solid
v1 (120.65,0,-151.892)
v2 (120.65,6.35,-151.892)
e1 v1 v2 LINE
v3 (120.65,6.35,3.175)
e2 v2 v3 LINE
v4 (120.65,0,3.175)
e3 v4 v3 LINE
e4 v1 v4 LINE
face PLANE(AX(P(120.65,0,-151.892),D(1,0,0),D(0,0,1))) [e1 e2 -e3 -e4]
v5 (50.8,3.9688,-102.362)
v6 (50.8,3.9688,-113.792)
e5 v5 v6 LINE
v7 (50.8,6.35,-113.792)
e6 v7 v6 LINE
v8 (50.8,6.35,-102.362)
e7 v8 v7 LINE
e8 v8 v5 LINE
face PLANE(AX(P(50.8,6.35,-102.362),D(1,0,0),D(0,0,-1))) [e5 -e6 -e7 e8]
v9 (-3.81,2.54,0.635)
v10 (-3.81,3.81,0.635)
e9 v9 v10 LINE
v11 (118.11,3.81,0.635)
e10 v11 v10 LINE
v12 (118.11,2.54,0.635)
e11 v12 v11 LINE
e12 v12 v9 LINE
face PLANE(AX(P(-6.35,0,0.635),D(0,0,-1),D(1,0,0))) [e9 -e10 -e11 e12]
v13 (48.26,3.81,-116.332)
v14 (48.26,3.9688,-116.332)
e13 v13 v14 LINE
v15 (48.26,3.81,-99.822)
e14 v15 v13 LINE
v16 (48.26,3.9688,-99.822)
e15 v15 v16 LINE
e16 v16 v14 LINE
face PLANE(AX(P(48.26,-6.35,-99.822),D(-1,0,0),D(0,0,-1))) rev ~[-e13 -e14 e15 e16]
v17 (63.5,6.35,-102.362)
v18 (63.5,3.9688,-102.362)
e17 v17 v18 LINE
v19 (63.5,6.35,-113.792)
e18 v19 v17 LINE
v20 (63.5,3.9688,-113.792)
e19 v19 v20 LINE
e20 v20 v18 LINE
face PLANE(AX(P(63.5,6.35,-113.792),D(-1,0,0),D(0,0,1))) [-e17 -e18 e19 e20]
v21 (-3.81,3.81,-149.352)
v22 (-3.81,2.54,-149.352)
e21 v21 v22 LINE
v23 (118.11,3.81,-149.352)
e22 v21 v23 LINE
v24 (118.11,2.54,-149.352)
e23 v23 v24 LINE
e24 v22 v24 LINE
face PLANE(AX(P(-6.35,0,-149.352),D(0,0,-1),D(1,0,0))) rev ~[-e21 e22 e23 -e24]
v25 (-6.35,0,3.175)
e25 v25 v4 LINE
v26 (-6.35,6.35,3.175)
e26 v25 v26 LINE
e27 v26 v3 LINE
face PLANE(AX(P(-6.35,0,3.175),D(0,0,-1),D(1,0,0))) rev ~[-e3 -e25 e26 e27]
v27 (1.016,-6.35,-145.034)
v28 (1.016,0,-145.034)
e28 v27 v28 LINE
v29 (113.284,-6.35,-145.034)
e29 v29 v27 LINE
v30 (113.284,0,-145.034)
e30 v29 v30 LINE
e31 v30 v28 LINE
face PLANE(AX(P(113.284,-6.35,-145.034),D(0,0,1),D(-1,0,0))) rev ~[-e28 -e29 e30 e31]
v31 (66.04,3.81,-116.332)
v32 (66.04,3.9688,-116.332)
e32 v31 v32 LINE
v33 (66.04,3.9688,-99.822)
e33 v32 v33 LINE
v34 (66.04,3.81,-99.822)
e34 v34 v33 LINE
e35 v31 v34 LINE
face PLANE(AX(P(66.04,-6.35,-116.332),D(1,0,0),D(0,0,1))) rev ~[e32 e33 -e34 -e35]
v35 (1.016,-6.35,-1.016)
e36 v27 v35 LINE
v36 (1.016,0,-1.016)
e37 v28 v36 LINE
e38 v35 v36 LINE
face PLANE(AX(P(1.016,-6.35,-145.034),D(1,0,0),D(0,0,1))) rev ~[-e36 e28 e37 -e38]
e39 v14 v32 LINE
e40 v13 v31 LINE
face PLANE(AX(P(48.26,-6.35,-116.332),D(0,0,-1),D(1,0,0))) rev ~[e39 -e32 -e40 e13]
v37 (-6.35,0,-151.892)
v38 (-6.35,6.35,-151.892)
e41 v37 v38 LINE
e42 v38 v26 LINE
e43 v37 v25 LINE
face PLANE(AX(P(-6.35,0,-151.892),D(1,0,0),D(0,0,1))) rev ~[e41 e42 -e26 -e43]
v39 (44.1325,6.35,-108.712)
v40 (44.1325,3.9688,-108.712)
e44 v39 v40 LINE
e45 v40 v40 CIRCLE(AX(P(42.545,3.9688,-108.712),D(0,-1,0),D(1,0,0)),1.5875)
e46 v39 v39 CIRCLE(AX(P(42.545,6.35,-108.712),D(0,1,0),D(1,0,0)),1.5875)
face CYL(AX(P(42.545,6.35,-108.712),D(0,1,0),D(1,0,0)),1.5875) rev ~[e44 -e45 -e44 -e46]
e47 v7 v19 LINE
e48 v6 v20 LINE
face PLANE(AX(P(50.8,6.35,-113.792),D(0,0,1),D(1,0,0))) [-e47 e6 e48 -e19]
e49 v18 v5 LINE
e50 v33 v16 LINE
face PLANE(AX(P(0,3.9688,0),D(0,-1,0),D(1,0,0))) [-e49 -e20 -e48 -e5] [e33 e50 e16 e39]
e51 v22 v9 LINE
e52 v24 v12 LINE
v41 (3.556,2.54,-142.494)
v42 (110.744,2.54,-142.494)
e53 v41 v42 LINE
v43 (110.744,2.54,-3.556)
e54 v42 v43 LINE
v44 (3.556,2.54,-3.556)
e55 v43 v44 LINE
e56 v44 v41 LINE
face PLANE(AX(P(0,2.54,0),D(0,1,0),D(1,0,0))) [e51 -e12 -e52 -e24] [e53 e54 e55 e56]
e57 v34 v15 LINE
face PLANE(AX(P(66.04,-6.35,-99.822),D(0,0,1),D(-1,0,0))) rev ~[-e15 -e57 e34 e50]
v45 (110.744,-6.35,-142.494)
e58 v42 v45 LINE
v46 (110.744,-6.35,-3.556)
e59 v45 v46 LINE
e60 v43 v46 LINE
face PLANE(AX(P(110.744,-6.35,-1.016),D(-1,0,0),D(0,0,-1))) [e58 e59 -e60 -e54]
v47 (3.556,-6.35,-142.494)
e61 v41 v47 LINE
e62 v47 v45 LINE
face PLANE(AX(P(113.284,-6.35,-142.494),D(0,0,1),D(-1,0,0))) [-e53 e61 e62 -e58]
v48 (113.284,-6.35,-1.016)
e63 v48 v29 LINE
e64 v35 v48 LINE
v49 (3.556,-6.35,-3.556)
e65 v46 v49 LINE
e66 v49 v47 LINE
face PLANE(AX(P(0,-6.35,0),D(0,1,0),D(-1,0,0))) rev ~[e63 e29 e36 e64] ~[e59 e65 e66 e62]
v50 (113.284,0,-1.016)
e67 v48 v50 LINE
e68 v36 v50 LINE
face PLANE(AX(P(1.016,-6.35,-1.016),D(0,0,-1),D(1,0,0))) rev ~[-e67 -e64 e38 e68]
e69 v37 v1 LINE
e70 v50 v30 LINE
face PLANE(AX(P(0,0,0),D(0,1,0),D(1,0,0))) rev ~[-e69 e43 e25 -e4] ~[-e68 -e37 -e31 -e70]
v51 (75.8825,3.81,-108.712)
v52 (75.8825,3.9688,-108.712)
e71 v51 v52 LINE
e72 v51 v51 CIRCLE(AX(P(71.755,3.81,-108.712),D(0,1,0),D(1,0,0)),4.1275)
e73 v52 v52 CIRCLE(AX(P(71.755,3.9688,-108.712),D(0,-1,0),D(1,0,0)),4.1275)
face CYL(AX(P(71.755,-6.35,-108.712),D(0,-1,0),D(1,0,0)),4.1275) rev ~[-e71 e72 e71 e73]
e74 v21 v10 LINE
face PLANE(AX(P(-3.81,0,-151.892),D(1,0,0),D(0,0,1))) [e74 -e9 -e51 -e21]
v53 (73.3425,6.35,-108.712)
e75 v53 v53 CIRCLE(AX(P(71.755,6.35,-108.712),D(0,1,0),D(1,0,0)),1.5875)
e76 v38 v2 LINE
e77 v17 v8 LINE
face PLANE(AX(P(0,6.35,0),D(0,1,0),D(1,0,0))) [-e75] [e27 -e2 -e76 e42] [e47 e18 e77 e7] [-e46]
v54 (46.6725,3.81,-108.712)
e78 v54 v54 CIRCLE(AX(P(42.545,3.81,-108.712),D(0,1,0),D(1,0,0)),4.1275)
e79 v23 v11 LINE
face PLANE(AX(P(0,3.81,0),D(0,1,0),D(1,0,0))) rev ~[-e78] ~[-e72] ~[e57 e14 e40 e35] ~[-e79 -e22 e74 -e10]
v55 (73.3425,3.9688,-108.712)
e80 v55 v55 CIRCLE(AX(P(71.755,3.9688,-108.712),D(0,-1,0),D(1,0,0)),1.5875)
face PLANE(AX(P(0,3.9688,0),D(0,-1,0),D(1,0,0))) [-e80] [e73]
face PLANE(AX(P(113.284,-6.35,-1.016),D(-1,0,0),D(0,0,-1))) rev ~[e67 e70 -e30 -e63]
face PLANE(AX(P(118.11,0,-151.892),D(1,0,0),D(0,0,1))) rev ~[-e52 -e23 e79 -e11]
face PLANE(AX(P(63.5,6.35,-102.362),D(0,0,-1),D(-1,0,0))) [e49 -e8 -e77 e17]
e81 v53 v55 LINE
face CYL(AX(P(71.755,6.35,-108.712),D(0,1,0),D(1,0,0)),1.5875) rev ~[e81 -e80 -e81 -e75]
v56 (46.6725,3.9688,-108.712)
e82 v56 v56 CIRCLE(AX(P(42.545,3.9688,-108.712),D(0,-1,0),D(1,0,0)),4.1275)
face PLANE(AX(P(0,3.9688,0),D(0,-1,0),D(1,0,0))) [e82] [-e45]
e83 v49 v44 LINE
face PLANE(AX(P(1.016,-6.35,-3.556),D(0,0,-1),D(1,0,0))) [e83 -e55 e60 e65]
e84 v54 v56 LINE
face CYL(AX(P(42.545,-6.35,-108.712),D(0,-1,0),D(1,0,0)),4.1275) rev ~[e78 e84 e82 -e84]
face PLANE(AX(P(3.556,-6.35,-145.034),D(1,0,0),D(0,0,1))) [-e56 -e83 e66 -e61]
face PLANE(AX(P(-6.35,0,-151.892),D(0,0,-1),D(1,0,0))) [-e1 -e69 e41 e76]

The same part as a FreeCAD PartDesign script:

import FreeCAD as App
import Part
import Sketcher
from FreeCAD import Vector
Q = App.Units.Quantity


def faces_at(feature, points):
    """Names of the faces that lie closest to the given points."""
    faces = feature.Shape.Faces
    near = lambda p: min(range(len(faces)), key=lambda i: faces[i].distToShape(Part.Vertex(*p))[0])
    return sorted({f"Face{near(p) + 1}" for p in points})


def add_polygon(sketch, points):
    """Adds a closed chain of lines whose ends are joined by coincident constraints."""
    first, n = sketch.GeometryCount, len(points)
    for a, b in zip(points, points[1:] + points[:1]):
        sketch.addGeometry(Part.LineSegment(App.Vector(*a, 0), App.Vector(*b, 0)), False)
    for i in range(n):
        sketch.addConstraint(Sketcher.Constraint("Coincident", first + i, 2, first + (i + 1) % n, 1))

doc = App.newDocument("Part")
body = doc.addObject("PartDesign::Body", "Body")

# Sketch on XZ plane
sketch1 = body.newObject("Sketcher::SketchObject", "Sketch")
sketch1.AttachmentSupport = (doc.getObject("XZ_Plane"), [""])
sketch1.MapMode = "FlatFace"
add_polygon(sketch1, [(0, -146), (0, 0), (114, 0), (114, -146)])  # lines 0-3
sketch1.addConstraint([
    Sketcher.Constraint("Vertical", 0),
    Sketcher.Constraint("Horizontal", 1),
    Sketcher.Constraint("Vertical", 2),
    Sketcher.Constraint("Horizontal", 3),
    Sketcher.Constraint("Coincident", 0, 2, -1, 1),
    Sketcher.Constraint("DistanceX", 1, 1, 1, 2, Q("4.5 in")),
    Sketcher.Constraint("DistanceY", 0, 1, 0, 2, Q("5.75 in")),
])
pad1 = body.newObject("PartDesign::Pad", "Pad")
pad1.Profile = sketch1
pad1.Length = Q("0.25 in")

# Sketch on XZ plane
sketch2 = body.newObject("Sketcher::SketchObject", "Sketch001")
sketch2.AttachmentSupport = (doc.getObject("XZ_Plane"), [""])
sketch2.MapMode = "FlatFace"
add_polygon(sketch2, [(121, -152), (-6, -152), (-6, 3), (121, 3)])  # lines 0-3
sketch2.addConstraint([
    Sketcher.Constraint("Horizontal", 0),
    Sketcher.Constraint("Vertical", 1),
    Sketcher.Constraint("Horizontal", 2),
    Sketcher.Constraint("Vertical", 3),
    Sketcher.Constraint("DistanceX", 0, 2, 0, 1, Q("5 in")),
    Sketcher.Constraint("DistanceX", 0, 2, -1, 1, Q("0.25 in")),
    Sketcher.Constraint("DistanceY", -1, 1, 1, 2, Q("0.125 in")),
    Sketcher.Constraint("DistanceY", 1, 1, 1, 2, Q("6.105 in")),
])
pad2 = body.newObject("PartDesign::Pad", "Pad001")
pad2.Profile = sketch2
pad2.Length = Q("0.25 in")
pad2.Reversed = True

# Sketch on XZ plane
sketch3 = body.newObject("Sketcher::SketchObject", "Sketch002")
sketch3.AttachmentSupport = (doc.getObject("XZ_Plane"), [""])
sketch3.MapMode = "FlatFace"
sketch3.AttachmentOffset = App.Placement(Vector(0, 0, -0.25 * 25.4), App.Rotation())
add_polygon(sketch3, [(63.5, -113.8), (50.8, -113.8), (50.8, -102.4), (63.5, -102.4)])  # lines 0-3
sketch3.addGeometry(Part.Circle(Vector(42.5, -108.7, 0), Vector(0, 0, 1), 1.6), False)  # 4
sketch3.addGeometry(Part.Circle(Vector(71.8, -108.7, 0), Vector(0, 0, 1), 1.6), False)  # 5
sketch3.addConstraint([
    Sketcher.Constraint("Horizontal", 0),
    Sketcher.Constraint("Vertical", 1),
    Sketcher.Constraint("Horizontal", 2),
    Sketcher.Constraint("Vertical", 3),
    Sketcher.Constraint("Equal", 4, 5),
    Sketcher.Constraint("Horizontal", 4, 3, 5, 3),
    Sketcher.Constraint("Diameter", 4, Q("0.125 in")),
    Sketcher.Constraint("DistanceX", 0, 2, 0, 1, Q("0.5 in")),
    Sketcher.Constraint("DistanceY", 1, 1, 1, 2, Q("0.45 in")),
    Sketcher.Constraint("DistanceY", 4, 3, 1, 2, Q("0.25 in")),
    Sketcher.Constraint("DistanceX", -1, 1, 0, 2, Q("2 in")),
    Sketcher.Constraint("DistanceX", 4, 3, 0, 2, Q("0.325 in")),
    Sketcher.Constraint("DistanceX", 2, 2, 5, 3, Q("0.325 in")),
    Sketcher.Constraint("DistanceY", 4, 3, -1, 1, Q("4.28 in")),
])
pocket1 = body.newObject("PartDesign::Pocket", "Pocket")
pocket1.Profile = sketch3
pocket1.Length = Q("1 in")
pocket1.Reversed = True

# Sketch on XZ plane
sketch4 = body.newObject("Sketcher::SketchObject", "Sketch003")
sketch4.AttachmentSupport = (doc.getObject("XZ_Plane"), [""])
sketch4.MapMode = "FlatFace"
sketch4.AttachmentOffset = App.Placement(Vector(0, 0, 0.25 * 25.4), App.Rotation())
add_polygon(sketch4, [(114, 0), (0, 0), (0, -146), (114, -146)])  # lines 0-3
add_polygon(sketch4, [(1, -145), (1, -1), (113, -1), (113, -145)])  # lines 4-7
sketch4.addConstraint([
    Sketcher.Constraint("Horizontal", 0),
    Sketcher.Constraint("Vertical", 1),
    Sketcher.Constraint("Horizontal", 2),
    Sketcher.Constraint("Vertical", 3),
    Sketcher.Constraint("Vertical", 4),
    Sketcher.Constraint("Horizontal", 5),
    Sketcher.Constraint("Vertical", 6),
    Sketcher.Constraint("Horizontal", 7),
    Sketcher.Constraint("Coincident", 0, 2, -1, 1),
    Sketcher.Constraint("DistanceX", -1, 1, 4, 2, Q("0.04 in")),
    Sketcher.Constraint("DistanceY", 4, 2, -1, 1, Q("0.04 in")),
    Sketcher.Constraint("DistanceX", 5, 2, 3, 2, Q("0.04 in")),
    Sketcher.Constraint("DistanceY", 2, 2, 6, 2, Q("0.04 in")),
    Sketcher.Constraint("DistanceX", 0, 2, 0, 1, Q("4.5 in")),
    Sketcher.Constraint("DistanceY", 1, 2, 1, 1, Q("5.75 in")),
])
pocket2 = body.newObject("PartDesign::Pocket", "Pocket001")
pocket2.Profile = sketch4
pocket2.Length = Q("0.25 in")
doc.recompute()

thickness = body.newObject("PartDesign::Thickness", "Thickness")
thickness.Base = (pocket2, faces_at(pocket2, [(59.267, -6.35, -34.798)]))
thickness.Value = Q("0.1 in")
thickness.Reversed = True
thickness.Join = "Intersection"

# Sketch on XZ plane
sketch5 = body.newObject("Sketcher::SketchObject", "Sketch004")
sketch5.AttachmentSupport = (doc.getObject("XZ_Plane"), [""])
sketch5.MapMode = "FlatFace"
sketch5.AttachmentOffset = App.Placement(Vector(0, 0, 0.25 * 25.4), App.Rotation())
sketch5.addGeometry(Part.Circle(Vector(71.8, -108.7, 0), Vector(0, 0, 1), 4.1), False)  # 0
sketch5.addGeometry(Part.Circle(Vector(71.8, -108.7, 0), Vector(0, 0, 1), 1.6), False)  # 1
sketch5.addGeometry(Part.Circle(Vector(42.5, -108.7, 0), Vector(0, 0, 1), 4.1), False)  # 2
sketch5.addGeometry(Part.Circle(Vector(42.5, -108.7, 0), Vector(0, 0, 1), 1.6), False)  # 3
add_polygon(sketch5, [(66, -116.3), (66, -99.8), (48.3, -99.8), (48.3, -116.3)])  # lines 4-7
sketch5.addConstraint([
    Sketcher.Constraint("Vertical", 4),
    Sketcher.Constraint("Horizontal", 5),
    Sketcher.Constraint("Vertical", 6),
    Sketcher.Constraint("Horizontal", 7),
    Sketcher.Constraint("Coincident", 1, 3, 0, 3),
    Sketcher.Constraint("Coincident", 3, 3, 2, 3),
    Sketcher.Constraint("Equal", 0, 2),
    Sketcher.Constraint("Equal", 1, 3),
    Sketcher.Constraint("Horizontal", 1, 3, 2, 3),
    Sketcher.Constraint("Diameter", 0, Q("0.325 in")),
    Sketcher.Constraint("Diameter", 1, Q("0.125 in")),
    Sketcher.Constraint("DistanceX", 5, 2, 5, 1, Q("0.7 in")),
    Sketcher.Constraint("DistanceY", 4, 1, 4, 2, Q("0.65 in")),
    Sketcher.Constraint("DistanceX", -1, 1, 4, 2, Q("2.6 in")),
    Sketcher.Constraint("DistanceY", 6, 2, 2, 3, Q("0.3 in")),
    Sketcher.Constraint("DistanceY", 0, 3, -1, 1, Q("4.28 in")),
    Sketcher.Constraint("DistanceX", 2, 3, 0, 3, Q("1.15 in")),
    Sketcher.Constraint("DistanceX", -1, 1, 0, 3, Q("2.825 in")),
])
pocket3 = body.newObject("PartDesign::Pocket", "Pocket002")
pocket3.Profile = sketch5
pocket3.Length = Q("0.406252 in")

doc.recompute()
